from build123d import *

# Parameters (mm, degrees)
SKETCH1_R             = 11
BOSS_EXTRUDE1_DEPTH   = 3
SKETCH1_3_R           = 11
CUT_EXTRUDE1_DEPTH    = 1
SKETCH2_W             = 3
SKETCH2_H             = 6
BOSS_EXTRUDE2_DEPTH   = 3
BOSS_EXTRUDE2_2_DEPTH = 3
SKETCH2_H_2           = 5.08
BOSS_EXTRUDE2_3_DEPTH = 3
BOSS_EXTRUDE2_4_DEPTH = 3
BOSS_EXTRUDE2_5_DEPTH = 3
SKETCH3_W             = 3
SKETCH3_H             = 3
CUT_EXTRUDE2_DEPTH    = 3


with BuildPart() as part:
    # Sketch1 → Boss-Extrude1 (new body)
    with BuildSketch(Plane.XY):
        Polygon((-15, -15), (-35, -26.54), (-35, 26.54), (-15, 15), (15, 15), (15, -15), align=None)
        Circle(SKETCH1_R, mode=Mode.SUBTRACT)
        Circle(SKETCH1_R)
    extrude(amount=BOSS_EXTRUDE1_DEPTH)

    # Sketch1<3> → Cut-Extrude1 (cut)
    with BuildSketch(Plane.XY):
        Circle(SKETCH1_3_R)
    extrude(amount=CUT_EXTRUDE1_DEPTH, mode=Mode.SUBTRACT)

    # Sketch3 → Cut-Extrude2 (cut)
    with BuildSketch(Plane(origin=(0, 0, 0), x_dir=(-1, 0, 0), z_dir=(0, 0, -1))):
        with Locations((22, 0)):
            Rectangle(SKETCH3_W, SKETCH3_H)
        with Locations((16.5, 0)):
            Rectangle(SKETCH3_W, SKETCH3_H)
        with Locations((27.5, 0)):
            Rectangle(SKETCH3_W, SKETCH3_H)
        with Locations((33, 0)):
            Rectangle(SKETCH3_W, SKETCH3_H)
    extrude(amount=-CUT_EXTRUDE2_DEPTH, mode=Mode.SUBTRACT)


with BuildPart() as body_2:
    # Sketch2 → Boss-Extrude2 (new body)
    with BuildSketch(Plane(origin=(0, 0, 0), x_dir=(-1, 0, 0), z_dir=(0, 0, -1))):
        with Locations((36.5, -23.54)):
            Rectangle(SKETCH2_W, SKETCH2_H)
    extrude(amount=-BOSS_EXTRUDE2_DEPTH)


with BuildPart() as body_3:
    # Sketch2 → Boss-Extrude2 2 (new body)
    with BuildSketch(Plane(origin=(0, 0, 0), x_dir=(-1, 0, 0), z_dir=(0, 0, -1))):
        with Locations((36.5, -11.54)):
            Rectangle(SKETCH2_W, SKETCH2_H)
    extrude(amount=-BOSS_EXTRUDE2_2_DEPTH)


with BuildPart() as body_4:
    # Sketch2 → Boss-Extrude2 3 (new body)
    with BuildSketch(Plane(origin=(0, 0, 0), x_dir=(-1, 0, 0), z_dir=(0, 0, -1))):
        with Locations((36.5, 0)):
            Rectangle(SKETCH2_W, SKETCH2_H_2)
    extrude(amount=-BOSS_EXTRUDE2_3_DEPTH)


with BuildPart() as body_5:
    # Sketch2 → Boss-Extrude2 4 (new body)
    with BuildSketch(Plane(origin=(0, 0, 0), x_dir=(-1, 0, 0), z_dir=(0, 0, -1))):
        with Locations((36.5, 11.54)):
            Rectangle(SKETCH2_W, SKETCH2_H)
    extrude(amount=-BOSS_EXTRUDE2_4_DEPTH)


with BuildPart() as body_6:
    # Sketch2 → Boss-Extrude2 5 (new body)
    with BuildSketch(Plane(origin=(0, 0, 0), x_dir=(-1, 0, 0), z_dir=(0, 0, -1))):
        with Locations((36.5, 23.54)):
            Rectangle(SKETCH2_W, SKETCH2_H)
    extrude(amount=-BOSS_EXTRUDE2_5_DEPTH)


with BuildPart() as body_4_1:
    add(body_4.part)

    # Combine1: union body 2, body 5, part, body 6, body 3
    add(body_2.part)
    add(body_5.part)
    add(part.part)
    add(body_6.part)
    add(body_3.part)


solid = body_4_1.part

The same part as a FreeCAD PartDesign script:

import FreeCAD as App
import Part
import Sketcher
from FreeCAD import Vector


def add_polygon(sketch, points):
    """Adds a closed chain of lines whose ends are joined by coincident constraints."""
    first, n = sketch.GeometryCount, len(points)
    for a, b in zip(points, points[1:] + points[:1]):
        sketch.addGeometry(Part.LineSegment(App.Vector(*a, 0), App.Vector(*b, 0)), False)
    for i in range(n):
        sketch.addConstraint(Sketcher.Constraint("Coincident", first + i, 2, first + (i + 1) % n, 1))

doc = App.newDocument("Part")
body = doc.addObject("PartDesign::Body", "Body")

# Sketch on XY plane
sketch1 = body.newObject("Sketcher::SketchObject", "Sketch")
sketch1.AttachmentSupport = (doc.getObject("XY_Plane"), [""])
sketch1.MapMode = "FlatFace"
add_polygon(sketch1, [(-35, -27), (-15, -15), (15, -15), (15, 15), (-15, 15), (-35, 27)])  # lines 0-5
sketch1.addConstraint(Sketcher.Constraint("Horizontal", 1))
sketch1.addConstraint(Sketcher.Constraint("Vertical", 2))
sketch1.addConstraint(Sketcher.Constraint("Horizontal", 3))
sketch1.addConstraint(Sketcher.Constraint("Vertical", 5))
sketch1.addConstraint(Sketcher.Constraint("Symmetric", 0, 2, 2, 2, -1, 1))
sketch1.addConstraint(Sketcher.Constraint("Vertical", 0, 2, 3, 2))
sketch1.addConstraint(Sketcher.Constraint("Equal", 3, 2))
sketch1.addConstraint(Sketcher.Constraint("Equal", 0, 4))
sketch1.addConstraint(Sketcher.Constraint("DistanceX", 1, 1, 1, 2, 30.0))
sketch1.addConstraint(Sketcher.Constraint("DistanceX", 4, 2, -1, 1, 35.0))
sketch1.addConstraint(Sketcher.Constraint("DistanceY", 5, 2, 5, 1, 53.08))
pad1 = body.newObject("PartDesign::Pad", "Pad")
pad1.Profile = sketch1
pad1.Length = 3

# Sketch on XY plane
sketch2 = body.newObject("Sketcher::SketchObject", "Sketch001")
sketch2.AttachmentSupport = (doc.getObject("XY_Plane"), [""])
sketch2.MapMode = "FlatFace"
sketch2.addGeometry(Part.Circle(Vector(0, 0, 0), Vector(0, 0, 1), 11), False)
sketch2.addConstraint(Sketcher.Constraint("Coincident", 0, 3, -1, 1))
sketch2.addConstraint(Sketcher.Constraint("Diameter", 0, 22.0))
pocket1 = body.newObject("PartDesign::Pocket", "Pocket")
pocket1.Profile = sketch2
pocket1.Length = 1
pocket1.Reversed = True

# Sketch on XY plane
sketch3 = body.newObject("Sketcher::SketchObject", "Sketch002")
sketch3.AttachmentSupport = (doc.getObject("XY_Plane"), [""])
sketch3.MapMode = "FlatFace"
add_polygon(sketch3, [(-20.5, 1.5), (-20.5, -1.5), (-23.5, -1.5), (-23.5, 1.5)])  # lines 0-3
add_polygon(sketch3, [(-15, 1.5), (-15, -1.5), (-18, -1.5), (-18, 1.5)])  # lines 4-7
add_polygon(sketch3, [(-26, 1.5), (-26, -1.5), (-29, -1.5), (-29, 1.5)])  # lines 8-11
add_polygon(sketch3, [(-31.5, 1.5), (-31.5, -1.5), (-34.5, -1.5), (-34.5, 1.5)])  # lines 12-15
sketch3.addConstraint(Sketcher.Constraint("Vertical", 0))
sketch3.addConstraint(Sketcher.Constraint("Horizontal", 1))
sketch3.addConstraint(Sketcher.Constraint("Vertical", 2))
sketch3.addConstraint(Sketcher.Constraint("Horizontal", 3))
sketch3.addConstraint(Sketcher.Constraint("Vertical", 4))
sketch3.addConstraint(Sketcher.Constraint("Horizontal", 5))
sketch3.addConstraint(Sketcher.Constraint("Vertical", 6))
sketch3.addConstraint(Sketcher.Constraint("Horizontal", 7))
sketch3.addConstraint(Sketcher.Constraint("Vertical", 8))
sketch3.addConstraint(Sketcher.Constraint("Horizontal", 9))
sketch3.addConstraint(Sketcher.Constraint("Vertical", 10))
sketch3.addConstraint(Sketcher.Constraint("Horizontal", 11))
sketch3.addConstraint(Sketcher.Constraint("Vertical", 12))
sketch3.addConstraint(Sketcher.Constraint("Horizontal", 13))
sketch3.addConstraint(Sketcher.Constraint("Vertical", 14))
sketch3.addConstraint(Sketcher.Constraint("Horizontal", 15))
sketch3.addConstraint(Sketcher.Constraint("Horizontal", 1, 2, 4, 2))
sketch3.addConstraint(Sketcher.Constraint("Horizontal", 3, 2, 6, 2))
sketch3.addConstraint(Sketcher.Constraint("Horizontal", 5, 2, 8, 2))
sketch3.addConstraint(Sketcher.Constraint("Horizontal", 7, 2, 10, 2))
sketch3.addConstraint(Sketcher.Constraint("Horizontal", 9, 2, 12, 2))
sketch3.addConstraint(Sketcher.Constraint("Horizontal", 11, 2, 14, 2))
sketch3.addConstraint(Sketcher.Constraint("Equal", 3, 5))
sketch3.addConstraint(Sketcher.Constraint("Equal", 7, 9))
sketch3.addConstraint(Sketcher.Constraint("Equal", 11, 13))
sketch3.addConstraint(Sketcher.Constraint("Equal", 15, 0))
sketch3.addConstraint(Sketcher.Constraint("DistanceX", 1, 2, 1, 1, 3.0))
sketch3.addConstraint(Sketcher.Constraint("DistanceX", 4, 2, -1, 1, 15.0))
sketch3.addConstraint(Sketcher.Constraint("DistanceX", 8, 2, -1, 1, 26.0))
sketch3.addConstraint(Sketcher.Constraint("DistanceX", 12, 2, 1, 2, 8.0))
sketch3.addConstraint(Sketcher.Constraint("DistanceX", 0, 2, -1, 1, 20.5))
sketch3.addConstraint(Sketcher.Constraint("DistanceY", 0, 2, -1, 1, 1.5))
pocket2 = body.newObject("PartDesign::Pocket", "Pocket001")
pocket2.Profile = sketch3
pocket2.Length = 3
pocket2.Reversed = True
body2 = doc.addObject("PartDesign::Body", "Body001")

# Sketch on XY plane
sketch4 = body2.newObject("Sketcher::SketchObject", "Sketch003")
sketch4.AttachmentSupport = (doc.getObject("XY_Plane001"), [""])
sketch4.MapMode = "FlatFace"
add_polygon(sketch4, [(-35, -20.5), (-35, -26.5), (-38, -26.5), (-38, -20.5)])  # lines 0-3
sketch4.addConstraint(Sketcher.Constraint("Vertical", 0))
sketch4.addConstraint(Sketcher.Constraint("Horizontal", 1))
sketch4.addConstraint(Sketcher.Constraint("Vertical", 2))
sketch4.addConstraint(Sketcher.Constraint("Horizontal", 3))
sketch4.addConstraint(Sketcher.Constraint("DistanceX", 1, 2, 1, 1, 3.0))
sketch4.addConstraint(Sketcher.Constraint("DistanceY", 0, 2, 0, 1, 6.0))
sketch4.addConstraint(Sketcher.Constraint("DistanceX", 0, 2, -1, 1, 35.0))
sketch4.addConstraint(Sketcher.Constraint("DistanceY", 0, 2, -1, 1, 26.54))
pad2 = body2.newObject("PartDesign::Pad", "Pad001")
pad2.Profile = sketch4
pad2.Length = 3
body3 = doc.addObject("PartDesign::Body", "Body002")

# Sketch on XY plane
sketch5 = body3.newObject("Sketcher::SketchObject", "Sketch004")
sketch5.AttachmentSupport = (doc.getObject("XY_Plane002"), [""])
sketch5.MapMode = "FlatFace"
add_polygon(sketch5, [(-35, -8.5), (-35, -14.5), (-38, -14.5), (-38, -8.5)])  # lines 0-3
sketch5.addConstraint(Sketcher.Constraint("Vertical", 0))
sketch5.addConstraint(Sketcher.Constraint("Horizontal", 1))
sketch5.addConstraint(Sketcher.Constraint("Vertical", 2))
sketch5.addConstraint(Sketcher.Constraint("Horizontal", 3))
sketch5.addConstraint(Sketcher.Constraint("DistanceX", 1, 2, 1, 1, 3.0))
sketch5.addConstraint(Sketcher.Constraint("DistanceY", 0, 2, 0, 1, 6.0))
sketch5.addConstraint(Sketcher.Constraint("DistanceX", 0, 2, -1, 1, 35.0))
sketch5.addConstraint(Sketcher.Constraint("DistanceY", 0, 2, -1, 1, 14.54))
pad3 = body3.newObject("PartDesign::Pad", "Pad002")
pad3.Profile = sketch5
pad3.Length = 3
body4 = doc.addObject("PartDesign::Body", "Body003")

# Sketch on XY plane
sketch6 = body4.newObject("Sketcher::SketchObject", "Sketch005")
sketch6.AttachmentSupport = (doc.getObject("XY_Plane003"), [""])
sketch6.MapMode = "FlatFace"
add_polygon(sketch6, [(-35, 2.5), (-35, -2.5), (-38, -2.5), (-38, 2.5)])  # lines 0-3
sketch6.addConstraint(Sketcher.Constraint("Vertical", 0))
sketch6.addConstraint(Sketcher.Constraint("Horizontal", 1))
sketch6.addConstraint(Sketcher.Constraint("Vertical", 2))
sketch6.addConstraint(Sketcher.Constraint("Horizontal", 3))
sketch6.addConstraint(Sketcher.Constraint("DistanceX", 1, 2, 1, 1, 3.0))
sketch6.addConstraint(Sketcher.Constraint("DistanceX", 0, 2, -1, 1, 35.0))
sketch6.addConstraint(Sketcher.Constraint("DistanceY", 0, 2, 0, 1, 5.08))
sketch6.addConstraint(Sketcher.Constraint("DistanceY", 0, 2, -1, 1, 2.54))
pad4 = body4.newObject("PartDesign::Pad", "Pad003")
pad4.Profile = sketch6
pad4.Length = 3
body5 = doc.addObject("PartDesign::Body", "Body004")

# Sketch on XY plane
sketch7 = body5.newObject("Sketcher::SketchObject", "Sketch006")
sketch7.AttachmentSupport = (doc.getObject("XY_Plane004"), [""])
sketch7.MapMode = "FlatFace"
add_polygon(sketch7, [(-35, 14.5), (-35, 8.5), (-38, 8.5), (-38, 14.5)])  # lines 0-3
sketch7.addConstraint(Sketcher.Constraint("Vertical", 0))
sketch7.addConstraint(Sketcher.Constraint("Horizontal", 1))
sketch7.addConstraint(Sketcher.Constraint("Vertical", 2))
sketch7.addConstraint(Sketcher.Constraint("Horizontal", 3))
sketch7.addConstraint(Sketcher.Constraint("DistanceX", 1, 2, 1, 1, 3.0))
sketch7.addConstraint(Sketcher.Constraint("DistanceY", 0, 2, 0, 1, 6.0))
sketch7.addConstraint(Sketcher.Constraint("DistanceX", 0, 2, -1, 1, 35.0))
sketch7.addConstraint(Sketcher.Constraint("DistanceY", -1, 1, 0, 2, 8.54))
pad5 = body5.newObject("PartDesign::Pad", "Pad004")
pad5.Profile = sketch7
pad5.Length = 3
body6 = doc.addObject("PartDesign::Body", "Body005")

# Sketch on XY plane
sketch8 = body6.newObject("Sketcher::SketchObject", "Sketch007")
sketch8.AttachmentSupport = (doc.getObject("XY_Plane005"), [""])
sketch8.MapMode = "FlatFace"
add_polygon(sketch8, [(-35, 26.5), (-35, 20.5), (-38, 20.5), (-38, 26.5)])  # lines 0-3
sketch8.addConstraint(Sketcher.Constraint("Vertical", 0))
sketch8.addConstraint(Sketcher.Constraint("Horizontal", 1))
sketch8.addConstraint(Sketcher.Constraint("Vertical", 2))
sketch8.addConstraint(Sketcher.Constraint("Horizontal", 3))
sketch8.addConstraint(Sketcher.Constraint("DistanceX", 1, 2, 1, 1, 3.0))
sketch8.addConstraint(Sketcher.Constraint("DistanceY", 0, 2, 0, 1, 6.0))
sketch8.addConstraint(Sketcher.Constraint("DistanceX", 0, 2, -1, 1, 35.0))
sketch8.addConstraint(Sketcher.Constraint("DistanceY", -1, 1, 0, 2, 20.54))
pad6 = body6.newObject("PartDesign::Pad", "Pad005")
pad6.Profile = sketch8
pad6.Length = 3
body4.AllowCompound = True
doc.recompute()

boolean = body4.newObject("PartDesign::Boolean", "Boolean")
boolean.Type = "Fuse"
boolean.addObjects([body2])
doc.recompute()

boolean2 = body4.newObject("PartDesign::Boolean", "Boolean001")
boolean2.Type = "Fuse"
boolean2.addObjects([body5])
doc.recompute()

boolean3 = body4.newObject("PartDesign::Boolean", "Boolean002")
boolean3.Type = "Fuse"
boolean3.addObjects([body])
doc.recompute()

boolean4 = body4.newObject("PartDesign::Boolean", "Boolean003")
boolean4.Type = "Fuse"
boolean4.addObjects([body6])
doc.recompute()

boolean5 = body4.newObject("PartDesign::Boolean", "Boolean004")
boolean5.Type = "Fuse"
boolean5.addObjects([body3])

doc.recompute()
